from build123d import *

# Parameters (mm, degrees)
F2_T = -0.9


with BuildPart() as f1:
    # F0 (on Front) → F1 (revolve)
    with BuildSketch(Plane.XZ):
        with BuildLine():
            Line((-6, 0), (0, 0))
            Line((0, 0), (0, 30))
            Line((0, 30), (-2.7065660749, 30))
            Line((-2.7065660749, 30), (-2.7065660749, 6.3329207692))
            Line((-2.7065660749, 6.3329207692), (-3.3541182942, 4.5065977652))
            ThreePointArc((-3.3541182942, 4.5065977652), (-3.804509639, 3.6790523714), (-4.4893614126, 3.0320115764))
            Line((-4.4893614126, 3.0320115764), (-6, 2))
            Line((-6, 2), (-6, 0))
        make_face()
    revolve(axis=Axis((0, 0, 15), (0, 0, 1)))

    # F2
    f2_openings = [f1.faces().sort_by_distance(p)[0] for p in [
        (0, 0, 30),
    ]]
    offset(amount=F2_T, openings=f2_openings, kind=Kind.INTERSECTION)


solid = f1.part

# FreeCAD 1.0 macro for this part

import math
import FreeCAD as App
import Part
import Sketcher
from FreeCAD import Vector


def faces_at(feature, points):
    """Names of the faces that lie closest to the given points."""
    faces = feature.Shape.Faces
    near = lambda p: min(range(len(faces)), key=lambda i: faces[i].distToShape(Part.Vertex(*p))[0])
    return sorted({f"Face{near(p) + 1}" for p in points})

doc = App.newDocument("Part")
body = doc.addObject("PartDesign::Body", "Body")

# Sketch on XZ plane
sketch1 = body.newObject("Sketcher::SketchObject", "Sketch")
sketch1.AttachmentSupport = (doc.getObject("XZ_Plane"), [""])
sketch1.MapMode = "FlatFace"
sketch1.addGeometry([
    Part.LineSegment(Vector(-6, 0, 0), Vector(0, 0, 0)),  # 0
    Part.LineSegment(Vector(0, 0, 0), Vector(0, 30, 0)),  # 1
    Part.LineSegment(Vector(0, 30, 0), Vector(-2.7, 30, 0)),  # 2
    Part.LineSegment(Vector(-2.7, 30, 0), Vector(-2.7, 6.3, 0)),  # 3
    Part.LineSegment(Vector(-2.7, 6.3, 0), Vector(-3.4, 4.5, 0)),  # 4
    Part.ArcOfCircle(Part.Circle(Vector(-6.2, 5.5, 0), Vector(0, 0, 1), 3), math.radians(-56), math.radians(-20)),  # 5
    Part.LineSegment(Vector(-4.5, 3, 0), Vector(-6, 2, 0)),  # 6
    Part.LineSegment(Vector(-6, 2, 0), Vector(-6, 0, 0)),  # 7
], False)
sketch1.addConstraint([
    Sketcher.Constraint("Coincident", 0, 2, 1, 1),
    Sketcher.Constraint("Coincident", 1, 2, 2, 1),
    Sketcher.Constraint("Coincident", 2, 2, 3, 1),
    Sketcher.Constraint("Coincident", 3, 2, 4, 1),
    Sketcher.Constraint("Tangent", 4, 2, 5, 2),
    Sketcher.Constraint("Tangent", 5, 1, 6, 1),
    Sketcher.Constraint("Coincident", 6, 2, 7, 1),
    Sketcher.Constraint("Coincident", 7, 2, 0, 1),
    Sketcher.Constraint("Horizontal", 0),
    Sketcher.Constraint("Vertical", 1),
    Sketcher.Constraint("Horizontal", 2),
    Sketcher.Constraint("Vertical", 3),
    Sketcher.Constraint("Vertical", 7),
    Sketcher.Constraint("Coincident", 0, 2, -1, 1),
    Sketcher.Constraint("Radius", 5, 3.0),
    Sketcher.Constraint("DistanceX", 0, 1, 0, 2, 6.0),
    Sketcher.Constraint("DistanceY", 1, 1, 1, 2, 30.0),
    Sketcher.Constraint("DistanceY", 7, 2, 7, 1, 2.0),
    Sketcher.Constraint("Distance", 6, 1.829502),
    Sketcher.Constraint("DistanceY", 3, 2, 3, 1, 23.667079),
    Sketcher.Constraint("DistanceX", 2, 2, 2, 1, 2.706566),
    Sketcher.Constraint("DistanceX", 4, 2, -1, 1, 3.354118),
])
revolution = body.newObject("PartDesign::Revolution", "Revolution")
revolution.Profile = sketch1
revolution.ReferenceAxis = (sketch1, ["V_Axis"])
revolution.Angle = 360
doc.recompute()

thickness = body.newObject("PartDesign::Thickness", "Thickness")
thickness.Base = (revolution, faces_at(revolution, [(0, 0, 30)]))
thickness.Value = 0.9
thickness.Reversed = True
thickness.Join = "Intersection"

doc.recompute()
